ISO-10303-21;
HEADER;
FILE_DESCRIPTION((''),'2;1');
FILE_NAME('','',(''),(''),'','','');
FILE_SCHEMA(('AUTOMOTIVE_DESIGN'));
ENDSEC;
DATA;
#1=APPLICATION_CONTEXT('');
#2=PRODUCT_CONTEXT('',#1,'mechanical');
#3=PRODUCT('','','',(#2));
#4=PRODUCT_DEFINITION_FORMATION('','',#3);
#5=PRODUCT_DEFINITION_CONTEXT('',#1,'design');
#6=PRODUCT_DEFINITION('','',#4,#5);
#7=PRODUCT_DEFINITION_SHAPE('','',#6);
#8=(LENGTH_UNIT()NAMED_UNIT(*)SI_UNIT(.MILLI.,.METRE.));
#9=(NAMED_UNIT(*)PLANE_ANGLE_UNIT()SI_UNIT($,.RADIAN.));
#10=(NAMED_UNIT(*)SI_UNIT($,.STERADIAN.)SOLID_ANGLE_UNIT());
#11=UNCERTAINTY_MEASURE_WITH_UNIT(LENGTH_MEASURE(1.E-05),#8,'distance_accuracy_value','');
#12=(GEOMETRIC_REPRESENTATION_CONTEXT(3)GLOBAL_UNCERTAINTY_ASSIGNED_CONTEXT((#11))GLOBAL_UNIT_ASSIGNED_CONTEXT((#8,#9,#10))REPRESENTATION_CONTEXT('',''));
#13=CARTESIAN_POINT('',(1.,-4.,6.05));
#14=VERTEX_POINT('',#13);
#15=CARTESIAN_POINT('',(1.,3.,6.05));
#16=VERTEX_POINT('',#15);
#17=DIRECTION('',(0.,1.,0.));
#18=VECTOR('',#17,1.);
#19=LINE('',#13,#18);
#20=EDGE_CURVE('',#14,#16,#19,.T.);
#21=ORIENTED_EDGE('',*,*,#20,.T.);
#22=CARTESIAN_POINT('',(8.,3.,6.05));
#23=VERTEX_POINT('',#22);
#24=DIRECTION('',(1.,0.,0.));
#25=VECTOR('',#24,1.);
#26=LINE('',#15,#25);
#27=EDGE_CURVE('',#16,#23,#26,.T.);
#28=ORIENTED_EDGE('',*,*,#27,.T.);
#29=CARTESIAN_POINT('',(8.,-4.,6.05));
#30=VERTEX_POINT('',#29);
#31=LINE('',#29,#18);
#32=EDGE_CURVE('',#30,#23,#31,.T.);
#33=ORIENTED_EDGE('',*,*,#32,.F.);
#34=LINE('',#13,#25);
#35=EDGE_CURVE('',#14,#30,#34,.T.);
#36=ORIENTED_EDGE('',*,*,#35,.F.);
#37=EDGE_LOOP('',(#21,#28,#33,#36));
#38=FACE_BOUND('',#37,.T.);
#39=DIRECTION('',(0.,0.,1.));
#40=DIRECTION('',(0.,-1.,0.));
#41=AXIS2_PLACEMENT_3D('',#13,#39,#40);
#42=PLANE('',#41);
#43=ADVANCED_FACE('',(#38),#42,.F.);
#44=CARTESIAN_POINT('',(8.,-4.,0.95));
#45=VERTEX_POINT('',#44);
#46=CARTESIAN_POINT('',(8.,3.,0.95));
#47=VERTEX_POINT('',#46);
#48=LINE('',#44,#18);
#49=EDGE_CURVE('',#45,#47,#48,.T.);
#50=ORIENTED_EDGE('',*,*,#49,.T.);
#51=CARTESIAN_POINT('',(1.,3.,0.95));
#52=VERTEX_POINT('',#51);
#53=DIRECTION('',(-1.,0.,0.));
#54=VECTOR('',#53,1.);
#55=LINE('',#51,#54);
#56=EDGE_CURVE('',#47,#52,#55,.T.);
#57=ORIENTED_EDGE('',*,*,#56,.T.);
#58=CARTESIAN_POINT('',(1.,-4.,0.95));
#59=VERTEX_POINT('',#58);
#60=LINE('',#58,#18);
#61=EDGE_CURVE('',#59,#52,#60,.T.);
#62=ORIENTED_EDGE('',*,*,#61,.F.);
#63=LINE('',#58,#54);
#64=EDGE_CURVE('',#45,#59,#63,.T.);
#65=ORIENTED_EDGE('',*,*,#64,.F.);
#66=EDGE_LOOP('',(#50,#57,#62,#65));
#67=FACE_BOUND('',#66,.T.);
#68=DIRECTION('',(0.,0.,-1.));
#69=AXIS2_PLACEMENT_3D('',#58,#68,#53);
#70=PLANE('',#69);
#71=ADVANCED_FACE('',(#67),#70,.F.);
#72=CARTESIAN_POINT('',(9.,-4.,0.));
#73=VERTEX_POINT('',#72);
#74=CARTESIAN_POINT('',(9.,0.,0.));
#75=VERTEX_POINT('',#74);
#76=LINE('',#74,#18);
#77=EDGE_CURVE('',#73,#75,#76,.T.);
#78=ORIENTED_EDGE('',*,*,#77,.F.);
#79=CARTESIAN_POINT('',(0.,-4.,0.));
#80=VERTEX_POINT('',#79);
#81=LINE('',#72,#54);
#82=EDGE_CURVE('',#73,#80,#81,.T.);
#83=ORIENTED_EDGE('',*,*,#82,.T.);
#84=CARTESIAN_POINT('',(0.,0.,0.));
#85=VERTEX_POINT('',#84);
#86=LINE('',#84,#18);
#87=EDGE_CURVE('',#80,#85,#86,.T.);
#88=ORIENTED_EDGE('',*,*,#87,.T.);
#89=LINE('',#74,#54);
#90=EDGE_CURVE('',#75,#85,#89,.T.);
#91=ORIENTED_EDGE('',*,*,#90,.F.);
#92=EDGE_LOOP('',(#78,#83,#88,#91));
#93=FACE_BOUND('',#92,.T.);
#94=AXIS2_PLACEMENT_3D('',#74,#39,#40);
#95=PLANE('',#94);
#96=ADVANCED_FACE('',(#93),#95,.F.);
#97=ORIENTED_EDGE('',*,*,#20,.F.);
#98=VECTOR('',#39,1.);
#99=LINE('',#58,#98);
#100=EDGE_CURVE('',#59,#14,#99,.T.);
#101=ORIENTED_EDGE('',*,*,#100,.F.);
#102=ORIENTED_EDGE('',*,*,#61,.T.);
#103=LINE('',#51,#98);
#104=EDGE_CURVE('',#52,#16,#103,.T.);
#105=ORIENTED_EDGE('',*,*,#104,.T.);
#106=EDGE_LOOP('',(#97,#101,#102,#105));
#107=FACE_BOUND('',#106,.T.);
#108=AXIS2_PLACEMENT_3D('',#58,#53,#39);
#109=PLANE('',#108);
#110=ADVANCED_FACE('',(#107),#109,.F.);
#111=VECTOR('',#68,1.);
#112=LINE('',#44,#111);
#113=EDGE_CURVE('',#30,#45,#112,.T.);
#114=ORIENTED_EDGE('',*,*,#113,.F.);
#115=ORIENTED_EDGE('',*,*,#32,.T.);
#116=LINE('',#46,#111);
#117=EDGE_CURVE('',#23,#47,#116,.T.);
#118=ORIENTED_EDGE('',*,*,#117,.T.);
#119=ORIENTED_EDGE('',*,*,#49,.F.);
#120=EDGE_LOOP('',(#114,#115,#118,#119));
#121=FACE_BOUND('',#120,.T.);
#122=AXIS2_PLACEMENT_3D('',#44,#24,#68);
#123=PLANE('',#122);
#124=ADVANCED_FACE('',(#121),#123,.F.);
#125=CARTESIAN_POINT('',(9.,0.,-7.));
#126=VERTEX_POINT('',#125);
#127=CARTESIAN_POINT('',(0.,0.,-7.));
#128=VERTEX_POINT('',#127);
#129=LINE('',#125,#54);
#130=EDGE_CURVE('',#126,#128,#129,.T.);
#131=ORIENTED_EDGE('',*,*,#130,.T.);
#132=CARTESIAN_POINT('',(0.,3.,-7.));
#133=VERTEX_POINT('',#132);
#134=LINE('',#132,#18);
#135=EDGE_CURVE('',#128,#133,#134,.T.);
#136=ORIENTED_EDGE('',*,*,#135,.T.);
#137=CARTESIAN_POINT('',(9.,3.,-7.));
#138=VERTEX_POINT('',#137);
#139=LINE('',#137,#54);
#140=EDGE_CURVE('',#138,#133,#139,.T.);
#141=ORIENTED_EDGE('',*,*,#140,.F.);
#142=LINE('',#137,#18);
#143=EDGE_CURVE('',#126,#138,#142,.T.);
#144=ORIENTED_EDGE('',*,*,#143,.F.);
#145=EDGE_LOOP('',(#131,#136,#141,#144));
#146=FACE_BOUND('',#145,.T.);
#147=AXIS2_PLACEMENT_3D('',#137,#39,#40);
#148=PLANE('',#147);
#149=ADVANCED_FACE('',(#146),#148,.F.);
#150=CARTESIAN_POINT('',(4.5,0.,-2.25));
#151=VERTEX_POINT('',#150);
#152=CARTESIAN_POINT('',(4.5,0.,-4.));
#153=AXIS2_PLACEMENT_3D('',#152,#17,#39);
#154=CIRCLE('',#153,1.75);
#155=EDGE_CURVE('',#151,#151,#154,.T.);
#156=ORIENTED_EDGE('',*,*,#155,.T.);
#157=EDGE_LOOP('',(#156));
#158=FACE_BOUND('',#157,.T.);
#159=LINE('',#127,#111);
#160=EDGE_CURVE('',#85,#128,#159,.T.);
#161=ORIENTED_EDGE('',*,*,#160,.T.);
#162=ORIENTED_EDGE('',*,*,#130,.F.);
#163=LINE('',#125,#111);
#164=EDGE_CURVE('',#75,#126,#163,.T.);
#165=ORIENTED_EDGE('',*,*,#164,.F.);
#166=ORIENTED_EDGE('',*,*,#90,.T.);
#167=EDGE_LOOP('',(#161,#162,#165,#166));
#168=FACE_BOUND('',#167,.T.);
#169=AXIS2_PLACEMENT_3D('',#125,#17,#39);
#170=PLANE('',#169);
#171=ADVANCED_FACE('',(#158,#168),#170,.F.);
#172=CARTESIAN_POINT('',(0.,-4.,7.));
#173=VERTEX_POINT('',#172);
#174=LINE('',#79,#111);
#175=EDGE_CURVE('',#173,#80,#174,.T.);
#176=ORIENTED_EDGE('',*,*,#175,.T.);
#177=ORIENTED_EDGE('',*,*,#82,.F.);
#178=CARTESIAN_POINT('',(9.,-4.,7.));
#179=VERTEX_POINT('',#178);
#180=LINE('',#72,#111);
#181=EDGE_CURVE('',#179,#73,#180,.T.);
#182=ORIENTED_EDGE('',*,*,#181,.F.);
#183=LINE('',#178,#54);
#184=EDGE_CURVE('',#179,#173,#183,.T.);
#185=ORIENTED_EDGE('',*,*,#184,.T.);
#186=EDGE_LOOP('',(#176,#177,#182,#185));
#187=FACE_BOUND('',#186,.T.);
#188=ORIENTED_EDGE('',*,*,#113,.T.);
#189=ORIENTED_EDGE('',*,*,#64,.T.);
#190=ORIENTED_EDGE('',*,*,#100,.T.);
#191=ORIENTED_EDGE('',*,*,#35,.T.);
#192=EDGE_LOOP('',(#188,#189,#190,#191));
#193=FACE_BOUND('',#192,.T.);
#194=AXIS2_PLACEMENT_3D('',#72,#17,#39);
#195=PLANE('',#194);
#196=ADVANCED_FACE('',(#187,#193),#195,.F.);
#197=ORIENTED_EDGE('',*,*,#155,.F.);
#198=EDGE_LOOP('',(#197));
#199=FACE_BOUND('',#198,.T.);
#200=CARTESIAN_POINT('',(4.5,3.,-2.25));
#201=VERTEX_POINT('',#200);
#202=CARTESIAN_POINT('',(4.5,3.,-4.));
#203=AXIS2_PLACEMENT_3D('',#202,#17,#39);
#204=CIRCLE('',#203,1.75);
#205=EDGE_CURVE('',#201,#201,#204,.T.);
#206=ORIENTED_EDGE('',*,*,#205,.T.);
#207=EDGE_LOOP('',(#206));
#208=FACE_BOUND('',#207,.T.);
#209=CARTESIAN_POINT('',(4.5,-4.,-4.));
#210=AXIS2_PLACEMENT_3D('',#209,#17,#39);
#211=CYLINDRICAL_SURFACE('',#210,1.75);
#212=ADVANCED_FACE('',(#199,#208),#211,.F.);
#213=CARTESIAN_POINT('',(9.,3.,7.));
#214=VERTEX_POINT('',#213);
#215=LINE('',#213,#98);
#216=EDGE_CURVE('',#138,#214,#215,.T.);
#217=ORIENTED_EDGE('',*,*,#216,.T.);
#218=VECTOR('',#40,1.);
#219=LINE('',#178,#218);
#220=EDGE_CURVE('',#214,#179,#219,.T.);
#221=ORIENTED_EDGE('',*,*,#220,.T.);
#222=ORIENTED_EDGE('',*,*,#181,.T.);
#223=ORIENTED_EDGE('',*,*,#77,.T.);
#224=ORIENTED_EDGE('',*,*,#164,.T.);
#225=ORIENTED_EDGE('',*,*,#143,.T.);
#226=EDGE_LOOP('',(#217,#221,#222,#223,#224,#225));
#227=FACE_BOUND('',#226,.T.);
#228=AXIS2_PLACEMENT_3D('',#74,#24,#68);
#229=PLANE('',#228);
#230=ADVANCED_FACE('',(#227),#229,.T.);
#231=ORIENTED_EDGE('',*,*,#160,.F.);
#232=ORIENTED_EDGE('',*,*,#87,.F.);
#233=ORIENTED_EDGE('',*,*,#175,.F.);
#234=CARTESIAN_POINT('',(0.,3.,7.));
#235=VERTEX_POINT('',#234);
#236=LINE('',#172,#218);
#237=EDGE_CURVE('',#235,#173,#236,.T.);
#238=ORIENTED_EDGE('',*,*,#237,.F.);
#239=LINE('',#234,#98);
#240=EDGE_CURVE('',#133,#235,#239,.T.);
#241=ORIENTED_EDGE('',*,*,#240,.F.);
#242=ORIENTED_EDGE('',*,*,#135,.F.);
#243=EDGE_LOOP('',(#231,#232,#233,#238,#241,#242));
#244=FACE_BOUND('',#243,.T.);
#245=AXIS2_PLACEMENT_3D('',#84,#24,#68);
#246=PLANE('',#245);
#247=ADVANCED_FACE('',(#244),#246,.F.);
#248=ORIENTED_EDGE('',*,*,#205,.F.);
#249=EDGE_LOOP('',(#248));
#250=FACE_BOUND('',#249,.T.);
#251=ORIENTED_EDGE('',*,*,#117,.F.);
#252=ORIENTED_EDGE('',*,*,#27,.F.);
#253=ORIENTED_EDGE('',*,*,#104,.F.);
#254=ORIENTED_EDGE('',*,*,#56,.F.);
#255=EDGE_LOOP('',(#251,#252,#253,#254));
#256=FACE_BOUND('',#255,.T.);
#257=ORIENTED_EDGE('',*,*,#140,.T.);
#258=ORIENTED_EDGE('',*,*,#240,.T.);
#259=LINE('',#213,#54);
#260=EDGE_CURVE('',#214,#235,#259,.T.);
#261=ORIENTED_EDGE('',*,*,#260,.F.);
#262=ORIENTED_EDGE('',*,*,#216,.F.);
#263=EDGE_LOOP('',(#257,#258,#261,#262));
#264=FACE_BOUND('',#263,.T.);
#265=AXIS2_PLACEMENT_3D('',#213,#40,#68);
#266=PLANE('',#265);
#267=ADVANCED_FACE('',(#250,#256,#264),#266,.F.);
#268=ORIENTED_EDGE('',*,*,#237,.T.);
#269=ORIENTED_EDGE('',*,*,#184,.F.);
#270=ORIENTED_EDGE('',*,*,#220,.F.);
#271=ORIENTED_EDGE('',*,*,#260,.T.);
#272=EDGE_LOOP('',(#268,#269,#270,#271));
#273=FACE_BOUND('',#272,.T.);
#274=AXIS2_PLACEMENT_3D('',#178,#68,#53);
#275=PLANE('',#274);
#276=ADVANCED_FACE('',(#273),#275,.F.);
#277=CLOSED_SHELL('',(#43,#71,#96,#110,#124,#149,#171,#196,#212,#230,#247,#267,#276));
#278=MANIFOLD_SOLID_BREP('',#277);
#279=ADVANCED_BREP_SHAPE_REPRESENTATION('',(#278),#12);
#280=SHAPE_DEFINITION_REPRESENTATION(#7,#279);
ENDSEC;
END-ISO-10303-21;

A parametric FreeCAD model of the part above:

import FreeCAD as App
import Part
import Sketcher
from FreeCAD import Vector


def add_polygon(sketch, points):
    """Adds a closed chain of lines whose ends are joined by coincident constraints."""
    first, n = sketch.GeometryCount, len(points)
    for a, b in zip(points, points[1:] + points[:1]):
        sketch.addGeometry(Part.LineSegment(App.Vector(*a, 0), App.Vector(*b, 0)), False)
    for i in range(n):
        sketch.addConstraint(Sketcher.Constraint("Coincident", first + i, 2, first + (i + 1) % n, 1))

doc = App.newDocument("Part")
body = doc.addObject("PartDesign::Body", "Body")

# Sketch on YZ plane
sketch1 = body.newObject("Sketcher::SketchObject", "Sketch")
sketch1.AttachmentSupport = (doc.getObject("YZ_Plane"), [""])
sketch1.MapMode = "FlatFace"
add_polygon(sketch1, [(-4, 0), (0, 0), (0, -7), (3, -7), (3, 7), (-4, 7)])  # lines 0-5
sketch1.addConstraint([
    Sketcher.Constraint("Horizontal", 0),
    Sketcher.Constraint("Vertical", 1),
    Sketcher.Constraint("Horizontal", 2),
    Sketcher.Constraint("Vertical", 3),
    Sketcher.Constraint("Horizontal", 4),
    Sketcher.Constraint("Vertical", 5),
    Sketcher.Constraint("Coincident", 0, 2, -1, 1),
    Sketcher.Constraint("Equal", 4, 1),
    Sketcher.Constraint("Equal", 1, 5),
    Sketcher.Constraint("DistanceX", 0, 1, 0, 2, 4.0),
    Sketcher.Constraint("DistanceX", 2, 1, 2, 2, 3.0),
])
pad1 = body.newObject("PartDesign::Pad", "Pad")
pad1.Profile = sketch1
pad1.Length = 9

# Sketch on XZ plane
sketch2 = body.newObject("Sketcher::SketchObject", "Sketch001")
sketch2.AttachmentSupport = (doc.getObject("XZ_Plane"), [""])
sketch2.MapMode = "FlatFace"
sketch2.AttachmentOffset = App.Placement(Vector(0, 0, -3), App.Rotation())
sketch2.addGeometry(Part.Circle(Vector(4.5, -4, 0), Vector(0, 0, 1), 1.8), False)  # 0
add_polygon(sketch2, [(1, 0.9), (1, 6), (8, 6), (8, 0.9)])  # lines 1-4
sketch2.addConstraint([
    Sketcher.Constraint("Vertical", 1),
    Sketcher.Constraint("Horizontal", 2),
    Sketcher.Constraint("Vertical", 3),
    Sketcher.Constraint("Horizontal", 4),
    Sketcher.Constraint("Diameter", 0, 3.5),
    Sketcher.Constraint("DistanceX", 2, 1, 2, 2, 7.0),
    Sketcher.Constraint("DistanceY", 1, 1, 1, 2, 5.1),
    Sketcher.Constraint("DistanceY", 0, 3, -1, 1, 4.0),
    Sketcher.Constraint("DistanceX", -1, 1, 1, 2, 1.0),
    Sketcher.Constraint("DistanceX", -1, 1, 0, 3, 4.5),
    Sketcher.Constraint("DistanceY", -1, 1, 1, 2, 6.05),
])
pocket1 = body.newObject("PartDesign::Pocket", "Pocket")
pocket1.Profile = sketch2
pocket1.Type = "ThroughAll"
pocket1.Reversed = True

doc.recompute()
